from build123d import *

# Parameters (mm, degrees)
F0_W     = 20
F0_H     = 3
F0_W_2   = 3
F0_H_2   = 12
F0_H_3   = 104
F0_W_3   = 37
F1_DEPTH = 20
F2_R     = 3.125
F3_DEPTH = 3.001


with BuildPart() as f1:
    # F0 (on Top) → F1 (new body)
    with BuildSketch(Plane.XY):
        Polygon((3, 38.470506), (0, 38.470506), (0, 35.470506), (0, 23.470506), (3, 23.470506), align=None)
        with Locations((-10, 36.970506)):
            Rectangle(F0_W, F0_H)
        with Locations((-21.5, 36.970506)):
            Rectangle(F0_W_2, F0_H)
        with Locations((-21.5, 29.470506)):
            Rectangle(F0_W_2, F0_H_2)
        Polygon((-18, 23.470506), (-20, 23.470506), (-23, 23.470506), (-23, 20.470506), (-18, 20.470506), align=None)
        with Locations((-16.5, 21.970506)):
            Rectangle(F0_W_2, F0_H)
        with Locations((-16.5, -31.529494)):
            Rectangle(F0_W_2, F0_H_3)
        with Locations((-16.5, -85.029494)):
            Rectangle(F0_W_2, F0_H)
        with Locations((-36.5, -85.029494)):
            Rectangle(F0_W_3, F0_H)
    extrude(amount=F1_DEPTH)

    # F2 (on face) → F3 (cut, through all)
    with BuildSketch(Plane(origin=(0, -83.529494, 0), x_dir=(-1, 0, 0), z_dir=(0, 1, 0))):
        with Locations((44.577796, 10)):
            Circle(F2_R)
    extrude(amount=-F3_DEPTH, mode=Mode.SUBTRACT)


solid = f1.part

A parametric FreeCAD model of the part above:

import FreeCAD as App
import Part
import Sketcher
Q = App.Units.Quantity


def add_polygon(sketch, points):
    """Adds a closed chain of lines whose ends are joined by coincident constraints."""
    first, n = sketch.GeometryCount, len(points)
    for a, b in zip(points, points[1:] + points[:1]):
        sketch.addGeometry(Part.LineSegment(App.Vector(*a, 0), App.Vector(*b, 0)), False)
    for i in range(n):
        sketch.addConstraint(Sketcher.Constraint("Coincident", first + i, 2, first + (i + 1) % n, 1))

doc = App.newDocument("Part")
body = doc.addObject("PartDesign::Body", "Body")

# Sketch on XY plane
sketch1 = doc.addObject("Sketcher::SketchObject", "Sketch")
body.addObject(sketch1)
sketch1.AttachmentSupport = (doc.XY_Plane, [""])
sketch1.MapMode = "FlatFace"
add_polygon(sketch1, [(3, 38.5), (-23, 38.5), (-23, 20.5), (-18, 20.5), (-18, -83.5), (-55, -83.5), (-55, -86.5), (-15, -86.5), (-15, 23.5), (-20, 23.5), (-20, 35.5), (0, 35.5), (0, 23.5), (3, 23.5)])  # lines 0-13
sketch1.addConstraint(Sketcher.Constraint("Horizontal", 0))
sketch1.addConstraint(Sketcher.Constraint("Vertical", 1))
sketch1.addConstraint(Sketcher.Constraint("Horizontal", 2))
sketch1.addConstraint(Sketcher.Constraint("Vertical", 3))
sketch1.addConstraint(Sketcher.Constraint("Horizontal", 4))
sketch1.addConstraint(Sketcher.Constraint("Vertical", 5))
sketch1.addConstraint(Sketcher.Constraint("Horizontal", 6))
sketch1.addConstraint(Sketcher.Constraint("Vertical", 7))
sketch1.addConstraint(Sketcher.Constraint("Horizontal", 8))
sketch1.addConstraint(Sketcher.Constraint("Vertical", 9))
sketch1.addConstraint(Sketcher.Constraint("Horizontal", 10))
sketch1.addConstraint(Sketcher.Constraint("Vertical", 11))
sketch1.addConstraint(Sketcher.Constraint("Horizontal", 12))
sketch1.addConstraint(Sketcher.Constraint("Vertical", 13))
sketch1.addConstraint(Sketcher.Constraint("PointOnObject", 10, 2, -2))
sketch1.addConstraint(Sketcher.Constraint("Horizontal", 8, 2, 11, 2))
sketch1.addConstraint(Sketcher.Constraint("Equal", 2, 8))
sketch1.addConstraint(Sketcher.Constraint("Equal", 12, 5))
sketch1.addConstraint(Sketcher.Constraint("DistanceX", 0, 2, 0, 1, Q("26 mm")))
sketch1.addConstraint(Sketcher.Constraint("DistanceX", 2, 1, 2, 2, Q("5 mm")))
sketch1.addConstraint(Sketcher.Constraint("DistanceX", 4, 2, 4, 1, Q("37 mm")))
sketch1.addConstraint(Sketcher.Constraint("DistanceX", 6, 1, 6, 2, Q("40 mm")))
sketch1.addConstraint(Sketcher.Constraint("DistanceX", 10, 1, 10, 2, Q("20 mm")))
sketch1.addConstraint(Sketcher.Constraint("DistanceY", 1, 2, 1, 1, Q("18 mm")))
sketch1.addConstraint(Sketcher.Constraint("DistanceY", 3, 2, 3, 1, Q("104 mm")))
sketch1.addConstraint(Sketcher.Constraint("DistanceY", 7, 1, 7, 2, Q("110 mm")))
sketch1.addConstraint(Sketcher.Constraint("DistanceY", 9, 1, 9, 2, Q("12 mm")))
sketch1.addConstraint(Sketcher.Constraint("DistanceY", -1, 1, 0, 2, Q("38.470506 mm")))
pad1 = doc.addObject("PartDesign::Pad", "Pad")
body.addObject(pad1)
pad1.Profile = sketch1
pad1.Length = 20

# Sketch on XZ plane
sketch2 = doc.addObject("Sketcher::SketchObject", "Sketch001")
body.addObject(sketch2)
sketch2.AttachmentSupport = (doc.XZ_Plane, [""])
sketch2.MapMode = "FlatFace"
sketch2.AttachmentOffset = App.Placement(App.Vector(0, 0, 83.529494), App.Rotation())
sketch2.addGeometry(Part.Circle(App.Vector(-44.6, 10, 0), App.Vector(0, 0, 1), 3.1), False)
sketch2.addConstraint(Sketcher.Constraint("Diameter", 0, Q("6.25 mm")))
sketch2.addConstraint(Sketcher.Constraint("DistanceY", -1, 1, 0, 3, Q("10 mm")))
sketch2.addConstraint(Sketcher.Constraint("DistanceX", 0, 3, -1, 1, Q("44.577796 mm")))
pocket1 = doc.addObject("PartDesign::Pocket", "Pocket")
body.addObject(pocket1)
pocket1.Profile = sketch2
pocket1.Type = "ThroughAll"
pocket1.Reversed = True

doc.recompute()
